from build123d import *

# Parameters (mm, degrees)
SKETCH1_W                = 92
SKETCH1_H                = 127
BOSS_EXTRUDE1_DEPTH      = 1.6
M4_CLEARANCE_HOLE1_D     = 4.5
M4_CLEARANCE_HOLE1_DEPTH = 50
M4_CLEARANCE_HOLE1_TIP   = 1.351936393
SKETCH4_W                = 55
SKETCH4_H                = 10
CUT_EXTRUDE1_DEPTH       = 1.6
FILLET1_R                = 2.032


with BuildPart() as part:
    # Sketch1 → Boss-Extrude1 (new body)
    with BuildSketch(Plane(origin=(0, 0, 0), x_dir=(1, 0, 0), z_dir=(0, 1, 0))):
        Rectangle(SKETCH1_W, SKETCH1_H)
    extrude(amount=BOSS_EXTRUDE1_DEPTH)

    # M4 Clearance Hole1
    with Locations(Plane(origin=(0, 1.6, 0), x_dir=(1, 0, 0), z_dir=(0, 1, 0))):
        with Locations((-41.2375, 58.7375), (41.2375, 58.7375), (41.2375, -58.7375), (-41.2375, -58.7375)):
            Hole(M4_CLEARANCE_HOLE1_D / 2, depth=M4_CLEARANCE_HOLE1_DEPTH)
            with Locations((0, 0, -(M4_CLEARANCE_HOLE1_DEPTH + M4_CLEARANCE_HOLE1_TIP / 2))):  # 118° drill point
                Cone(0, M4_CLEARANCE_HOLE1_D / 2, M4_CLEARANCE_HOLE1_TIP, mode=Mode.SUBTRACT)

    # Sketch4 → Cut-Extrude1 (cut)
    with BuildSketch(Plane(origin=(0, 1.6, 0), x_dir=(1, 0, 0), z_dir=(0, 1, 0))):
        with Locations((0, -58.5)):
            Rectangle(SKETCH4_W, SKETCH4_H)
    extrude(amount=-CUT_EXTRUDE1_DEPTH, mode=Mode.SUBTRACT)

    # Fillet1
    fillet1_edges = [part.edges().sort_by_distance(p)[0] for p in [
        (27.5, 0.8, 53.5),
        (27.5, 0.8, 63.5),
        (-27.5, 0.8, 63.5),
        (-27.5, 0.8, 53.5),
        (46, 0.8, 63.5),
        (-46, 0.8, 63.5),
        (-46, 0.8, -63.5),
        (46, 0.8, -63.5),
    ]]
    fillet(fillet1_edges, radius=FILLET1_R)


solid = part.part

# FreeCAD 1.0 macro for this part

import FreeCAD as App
import Part
import Sketcher


def edges_at(feature, points):
    """Names of the edges that pass closest to the given points."""
    edges = feature.Shape.Edges
    near = lambda p: min(range(len(edges)), key=lambda i: edges[i].distToShape(Part.Vertex(*p))[0])
    return sorted({f"Edge{near(p) + 1}" for p in points})


def add_polygon(sketch, points):
    """Adds a closed chain of lines whose ends are joined by coincident constraints."""
    first, n = sketch.GeometryCount, len(points)
    for a, b in zip(points, points[1:] + points[:1]):
        sketch.addGeometry(Part.LineSegment(App.Vector(*a, 0), App.Vector(*b, 0)), False)
    for i in range(n):
        sketch.addConstraint(Sketcher.Constraint("Coincident", first + i, 2, first + (i + 1) % n, 1))

doc = App.newDocument("Part")
body = doc.addObject("PartDesign::Body", "Body")

sketch1 = body.newObject("Sketcher::SketchObject", "Sketch")
sketch1.AttachmentSupport = (doc.getObject("XZ_Plane"), [""])
sketch1.MapMode = "FlatFace"
add_polygon(sketch1, [(-46, -63.5), (-46, 63.5), (46, 63.5), (46, -63.5)])
sketch1.addConstraint([
    Sketcher.Constraint("Vertical", 0),
    Sketcher.Constraint("Horizontal", 1),
    Sketcher.Constraint("Vertical", 2),
    Sketcher.Constraint("Horizontal", 3),
    Sketcher.Constraint("Symmetric", 0, 2, 2, 2, -1, 1),
    Sketcher.Constraint("DistanceX", 1, 1, 1, 2, 92.0),
    Sketcher.Constraint("DistanceY", 0, 1, 0, 2, 127.0),
])
pad1 = body.newObject("PartDesign::Pad", "Pad")
pad1.Profile = sketch1
pad1.Length = 1.6
pad1.Reversed = True

sketch2 = body.newObject("Sketcher::SketchObject", "Sketch001")
sketch2.AttachmentSupport = (doc.getObject("XZ_Plane"), [""])
sketch2.MapMode = "FlatFace"
sketch2.AttachmentOffset = App.Placement(App.Vector(0, 0, -1.6), App.Rotation())
sketch2.addGeometry([
    Part.Circle(App.Vector(-41.2375, -58.7375, 0), App.Vector(0, 0, 1), 2.25),
    Part.Circle(App.Vector(41.2375, -58.7375, 0), App.Vector(0, 0, 1), 2.25),
    Part.Circle(App.Vector(41.2375, 58.7375, 0), App.Vector(0, 0, 1), 2.25),
    Part.Circle(App.Vector(-41.2375, 58.7375, 0), App.Vector(0, 0, 1), 2.25),
], False)
sketch2.addConstraint([
    Sketcher.Constraint("Equal", 0, 1),
    Sketcher.Constraint("Equal", 1, 2),
    Sketcher.Constraint("Equal", 2, 3),
    Sketcher.Constraint("Symmetric", 0, 3, 2, 3, -1, 1),
    Sketcher.Constraint("Symmetric", 1, 3, 3, 3, -1, 1),
    Sketcher.Constraint("Symmetric", 0, 3, 1, 3, -2),
    Sketcher.Constraint("Diameter", 0, 4.5),
    Sketcher.Constraint("DistanceX", 0, 3, 1, 3, 82.475),
    Sketcher.Constraint("DistanceY", 1, 3, 2, 3, 117.475),
])
doc.recompute()
hole = body.newObject("PartDesign::Hole", "Hole")
hole.Profile = sketch2
hole.ThreadType = "None"
hole.Diameter = 4.5
hole.DepthType = "Dimension"
hole.Depth = 50
hole.DrillPoint = "Angled"
hole.DrillPointAngle = 118
hole.Reversed = True

sketch3 = body.newObject("Sketcher::SketchObject", "Sketch002")
sketch3.AttachmentSupport = (doc.getObject("XZ_Plane"), [""])
sketch3.MapMode = "FlatFace"
sketch3.AttachmentOffset = App.Placement(App.Vector(0, 0, -1.6), App.Rotation())
add_polygon(sketch3, [(-27.5, 53.5), (-27.5, 63.5), (27.5, 63.5), (27.5, 53.5)])
sketch3.addConstraint([
    Sketcher.Constraint("Vertical", 0),
    Sketcher.Constraint("Horizontal", 1),
    Sketcher.Constraint("Vertical", 2),
    Sketcher.Constraint("Horizontal", 3),
    Sketcher.Constraint("DistanceX", 1, 1, 1, 2, 55.0),
    Sketcher.Constraint("DistanceY", 0, 1, 0, 2, 10.0),
    Sketcher.Constraint("DistanceX", 0, 2, -1, 1, 27.5),
    Sketcher.Constraint("DistanceY", -1, 1, 0, 2, 63.5),
])
pocket1 = body.newObject("PartDesign::Pocket", "Pocket")
pocket1.Profile = sketch3
pocket1.Length = 1.6
pocket1.Reversed = True
doc.recompute()

fillet = body.newObject("PartDesign::Fillet", "Fillet")
fillet.Base = (pocket1, edges_at(pocket1, [
    (27.5, 0.8, 53.5),
    (27.5, 0.8, 63.5),
    (-27.5, 0.8, 63.5),
    (-27.5, 0.8, 53.5),
    (46, 0.8, 63.5),
    (-46, 0.8, 63.5),
    (-46, 0.8, -63.5),
    (46, 0.8, -63.5),
]))
fillet.Radius = 2.032

doc.recompute()
